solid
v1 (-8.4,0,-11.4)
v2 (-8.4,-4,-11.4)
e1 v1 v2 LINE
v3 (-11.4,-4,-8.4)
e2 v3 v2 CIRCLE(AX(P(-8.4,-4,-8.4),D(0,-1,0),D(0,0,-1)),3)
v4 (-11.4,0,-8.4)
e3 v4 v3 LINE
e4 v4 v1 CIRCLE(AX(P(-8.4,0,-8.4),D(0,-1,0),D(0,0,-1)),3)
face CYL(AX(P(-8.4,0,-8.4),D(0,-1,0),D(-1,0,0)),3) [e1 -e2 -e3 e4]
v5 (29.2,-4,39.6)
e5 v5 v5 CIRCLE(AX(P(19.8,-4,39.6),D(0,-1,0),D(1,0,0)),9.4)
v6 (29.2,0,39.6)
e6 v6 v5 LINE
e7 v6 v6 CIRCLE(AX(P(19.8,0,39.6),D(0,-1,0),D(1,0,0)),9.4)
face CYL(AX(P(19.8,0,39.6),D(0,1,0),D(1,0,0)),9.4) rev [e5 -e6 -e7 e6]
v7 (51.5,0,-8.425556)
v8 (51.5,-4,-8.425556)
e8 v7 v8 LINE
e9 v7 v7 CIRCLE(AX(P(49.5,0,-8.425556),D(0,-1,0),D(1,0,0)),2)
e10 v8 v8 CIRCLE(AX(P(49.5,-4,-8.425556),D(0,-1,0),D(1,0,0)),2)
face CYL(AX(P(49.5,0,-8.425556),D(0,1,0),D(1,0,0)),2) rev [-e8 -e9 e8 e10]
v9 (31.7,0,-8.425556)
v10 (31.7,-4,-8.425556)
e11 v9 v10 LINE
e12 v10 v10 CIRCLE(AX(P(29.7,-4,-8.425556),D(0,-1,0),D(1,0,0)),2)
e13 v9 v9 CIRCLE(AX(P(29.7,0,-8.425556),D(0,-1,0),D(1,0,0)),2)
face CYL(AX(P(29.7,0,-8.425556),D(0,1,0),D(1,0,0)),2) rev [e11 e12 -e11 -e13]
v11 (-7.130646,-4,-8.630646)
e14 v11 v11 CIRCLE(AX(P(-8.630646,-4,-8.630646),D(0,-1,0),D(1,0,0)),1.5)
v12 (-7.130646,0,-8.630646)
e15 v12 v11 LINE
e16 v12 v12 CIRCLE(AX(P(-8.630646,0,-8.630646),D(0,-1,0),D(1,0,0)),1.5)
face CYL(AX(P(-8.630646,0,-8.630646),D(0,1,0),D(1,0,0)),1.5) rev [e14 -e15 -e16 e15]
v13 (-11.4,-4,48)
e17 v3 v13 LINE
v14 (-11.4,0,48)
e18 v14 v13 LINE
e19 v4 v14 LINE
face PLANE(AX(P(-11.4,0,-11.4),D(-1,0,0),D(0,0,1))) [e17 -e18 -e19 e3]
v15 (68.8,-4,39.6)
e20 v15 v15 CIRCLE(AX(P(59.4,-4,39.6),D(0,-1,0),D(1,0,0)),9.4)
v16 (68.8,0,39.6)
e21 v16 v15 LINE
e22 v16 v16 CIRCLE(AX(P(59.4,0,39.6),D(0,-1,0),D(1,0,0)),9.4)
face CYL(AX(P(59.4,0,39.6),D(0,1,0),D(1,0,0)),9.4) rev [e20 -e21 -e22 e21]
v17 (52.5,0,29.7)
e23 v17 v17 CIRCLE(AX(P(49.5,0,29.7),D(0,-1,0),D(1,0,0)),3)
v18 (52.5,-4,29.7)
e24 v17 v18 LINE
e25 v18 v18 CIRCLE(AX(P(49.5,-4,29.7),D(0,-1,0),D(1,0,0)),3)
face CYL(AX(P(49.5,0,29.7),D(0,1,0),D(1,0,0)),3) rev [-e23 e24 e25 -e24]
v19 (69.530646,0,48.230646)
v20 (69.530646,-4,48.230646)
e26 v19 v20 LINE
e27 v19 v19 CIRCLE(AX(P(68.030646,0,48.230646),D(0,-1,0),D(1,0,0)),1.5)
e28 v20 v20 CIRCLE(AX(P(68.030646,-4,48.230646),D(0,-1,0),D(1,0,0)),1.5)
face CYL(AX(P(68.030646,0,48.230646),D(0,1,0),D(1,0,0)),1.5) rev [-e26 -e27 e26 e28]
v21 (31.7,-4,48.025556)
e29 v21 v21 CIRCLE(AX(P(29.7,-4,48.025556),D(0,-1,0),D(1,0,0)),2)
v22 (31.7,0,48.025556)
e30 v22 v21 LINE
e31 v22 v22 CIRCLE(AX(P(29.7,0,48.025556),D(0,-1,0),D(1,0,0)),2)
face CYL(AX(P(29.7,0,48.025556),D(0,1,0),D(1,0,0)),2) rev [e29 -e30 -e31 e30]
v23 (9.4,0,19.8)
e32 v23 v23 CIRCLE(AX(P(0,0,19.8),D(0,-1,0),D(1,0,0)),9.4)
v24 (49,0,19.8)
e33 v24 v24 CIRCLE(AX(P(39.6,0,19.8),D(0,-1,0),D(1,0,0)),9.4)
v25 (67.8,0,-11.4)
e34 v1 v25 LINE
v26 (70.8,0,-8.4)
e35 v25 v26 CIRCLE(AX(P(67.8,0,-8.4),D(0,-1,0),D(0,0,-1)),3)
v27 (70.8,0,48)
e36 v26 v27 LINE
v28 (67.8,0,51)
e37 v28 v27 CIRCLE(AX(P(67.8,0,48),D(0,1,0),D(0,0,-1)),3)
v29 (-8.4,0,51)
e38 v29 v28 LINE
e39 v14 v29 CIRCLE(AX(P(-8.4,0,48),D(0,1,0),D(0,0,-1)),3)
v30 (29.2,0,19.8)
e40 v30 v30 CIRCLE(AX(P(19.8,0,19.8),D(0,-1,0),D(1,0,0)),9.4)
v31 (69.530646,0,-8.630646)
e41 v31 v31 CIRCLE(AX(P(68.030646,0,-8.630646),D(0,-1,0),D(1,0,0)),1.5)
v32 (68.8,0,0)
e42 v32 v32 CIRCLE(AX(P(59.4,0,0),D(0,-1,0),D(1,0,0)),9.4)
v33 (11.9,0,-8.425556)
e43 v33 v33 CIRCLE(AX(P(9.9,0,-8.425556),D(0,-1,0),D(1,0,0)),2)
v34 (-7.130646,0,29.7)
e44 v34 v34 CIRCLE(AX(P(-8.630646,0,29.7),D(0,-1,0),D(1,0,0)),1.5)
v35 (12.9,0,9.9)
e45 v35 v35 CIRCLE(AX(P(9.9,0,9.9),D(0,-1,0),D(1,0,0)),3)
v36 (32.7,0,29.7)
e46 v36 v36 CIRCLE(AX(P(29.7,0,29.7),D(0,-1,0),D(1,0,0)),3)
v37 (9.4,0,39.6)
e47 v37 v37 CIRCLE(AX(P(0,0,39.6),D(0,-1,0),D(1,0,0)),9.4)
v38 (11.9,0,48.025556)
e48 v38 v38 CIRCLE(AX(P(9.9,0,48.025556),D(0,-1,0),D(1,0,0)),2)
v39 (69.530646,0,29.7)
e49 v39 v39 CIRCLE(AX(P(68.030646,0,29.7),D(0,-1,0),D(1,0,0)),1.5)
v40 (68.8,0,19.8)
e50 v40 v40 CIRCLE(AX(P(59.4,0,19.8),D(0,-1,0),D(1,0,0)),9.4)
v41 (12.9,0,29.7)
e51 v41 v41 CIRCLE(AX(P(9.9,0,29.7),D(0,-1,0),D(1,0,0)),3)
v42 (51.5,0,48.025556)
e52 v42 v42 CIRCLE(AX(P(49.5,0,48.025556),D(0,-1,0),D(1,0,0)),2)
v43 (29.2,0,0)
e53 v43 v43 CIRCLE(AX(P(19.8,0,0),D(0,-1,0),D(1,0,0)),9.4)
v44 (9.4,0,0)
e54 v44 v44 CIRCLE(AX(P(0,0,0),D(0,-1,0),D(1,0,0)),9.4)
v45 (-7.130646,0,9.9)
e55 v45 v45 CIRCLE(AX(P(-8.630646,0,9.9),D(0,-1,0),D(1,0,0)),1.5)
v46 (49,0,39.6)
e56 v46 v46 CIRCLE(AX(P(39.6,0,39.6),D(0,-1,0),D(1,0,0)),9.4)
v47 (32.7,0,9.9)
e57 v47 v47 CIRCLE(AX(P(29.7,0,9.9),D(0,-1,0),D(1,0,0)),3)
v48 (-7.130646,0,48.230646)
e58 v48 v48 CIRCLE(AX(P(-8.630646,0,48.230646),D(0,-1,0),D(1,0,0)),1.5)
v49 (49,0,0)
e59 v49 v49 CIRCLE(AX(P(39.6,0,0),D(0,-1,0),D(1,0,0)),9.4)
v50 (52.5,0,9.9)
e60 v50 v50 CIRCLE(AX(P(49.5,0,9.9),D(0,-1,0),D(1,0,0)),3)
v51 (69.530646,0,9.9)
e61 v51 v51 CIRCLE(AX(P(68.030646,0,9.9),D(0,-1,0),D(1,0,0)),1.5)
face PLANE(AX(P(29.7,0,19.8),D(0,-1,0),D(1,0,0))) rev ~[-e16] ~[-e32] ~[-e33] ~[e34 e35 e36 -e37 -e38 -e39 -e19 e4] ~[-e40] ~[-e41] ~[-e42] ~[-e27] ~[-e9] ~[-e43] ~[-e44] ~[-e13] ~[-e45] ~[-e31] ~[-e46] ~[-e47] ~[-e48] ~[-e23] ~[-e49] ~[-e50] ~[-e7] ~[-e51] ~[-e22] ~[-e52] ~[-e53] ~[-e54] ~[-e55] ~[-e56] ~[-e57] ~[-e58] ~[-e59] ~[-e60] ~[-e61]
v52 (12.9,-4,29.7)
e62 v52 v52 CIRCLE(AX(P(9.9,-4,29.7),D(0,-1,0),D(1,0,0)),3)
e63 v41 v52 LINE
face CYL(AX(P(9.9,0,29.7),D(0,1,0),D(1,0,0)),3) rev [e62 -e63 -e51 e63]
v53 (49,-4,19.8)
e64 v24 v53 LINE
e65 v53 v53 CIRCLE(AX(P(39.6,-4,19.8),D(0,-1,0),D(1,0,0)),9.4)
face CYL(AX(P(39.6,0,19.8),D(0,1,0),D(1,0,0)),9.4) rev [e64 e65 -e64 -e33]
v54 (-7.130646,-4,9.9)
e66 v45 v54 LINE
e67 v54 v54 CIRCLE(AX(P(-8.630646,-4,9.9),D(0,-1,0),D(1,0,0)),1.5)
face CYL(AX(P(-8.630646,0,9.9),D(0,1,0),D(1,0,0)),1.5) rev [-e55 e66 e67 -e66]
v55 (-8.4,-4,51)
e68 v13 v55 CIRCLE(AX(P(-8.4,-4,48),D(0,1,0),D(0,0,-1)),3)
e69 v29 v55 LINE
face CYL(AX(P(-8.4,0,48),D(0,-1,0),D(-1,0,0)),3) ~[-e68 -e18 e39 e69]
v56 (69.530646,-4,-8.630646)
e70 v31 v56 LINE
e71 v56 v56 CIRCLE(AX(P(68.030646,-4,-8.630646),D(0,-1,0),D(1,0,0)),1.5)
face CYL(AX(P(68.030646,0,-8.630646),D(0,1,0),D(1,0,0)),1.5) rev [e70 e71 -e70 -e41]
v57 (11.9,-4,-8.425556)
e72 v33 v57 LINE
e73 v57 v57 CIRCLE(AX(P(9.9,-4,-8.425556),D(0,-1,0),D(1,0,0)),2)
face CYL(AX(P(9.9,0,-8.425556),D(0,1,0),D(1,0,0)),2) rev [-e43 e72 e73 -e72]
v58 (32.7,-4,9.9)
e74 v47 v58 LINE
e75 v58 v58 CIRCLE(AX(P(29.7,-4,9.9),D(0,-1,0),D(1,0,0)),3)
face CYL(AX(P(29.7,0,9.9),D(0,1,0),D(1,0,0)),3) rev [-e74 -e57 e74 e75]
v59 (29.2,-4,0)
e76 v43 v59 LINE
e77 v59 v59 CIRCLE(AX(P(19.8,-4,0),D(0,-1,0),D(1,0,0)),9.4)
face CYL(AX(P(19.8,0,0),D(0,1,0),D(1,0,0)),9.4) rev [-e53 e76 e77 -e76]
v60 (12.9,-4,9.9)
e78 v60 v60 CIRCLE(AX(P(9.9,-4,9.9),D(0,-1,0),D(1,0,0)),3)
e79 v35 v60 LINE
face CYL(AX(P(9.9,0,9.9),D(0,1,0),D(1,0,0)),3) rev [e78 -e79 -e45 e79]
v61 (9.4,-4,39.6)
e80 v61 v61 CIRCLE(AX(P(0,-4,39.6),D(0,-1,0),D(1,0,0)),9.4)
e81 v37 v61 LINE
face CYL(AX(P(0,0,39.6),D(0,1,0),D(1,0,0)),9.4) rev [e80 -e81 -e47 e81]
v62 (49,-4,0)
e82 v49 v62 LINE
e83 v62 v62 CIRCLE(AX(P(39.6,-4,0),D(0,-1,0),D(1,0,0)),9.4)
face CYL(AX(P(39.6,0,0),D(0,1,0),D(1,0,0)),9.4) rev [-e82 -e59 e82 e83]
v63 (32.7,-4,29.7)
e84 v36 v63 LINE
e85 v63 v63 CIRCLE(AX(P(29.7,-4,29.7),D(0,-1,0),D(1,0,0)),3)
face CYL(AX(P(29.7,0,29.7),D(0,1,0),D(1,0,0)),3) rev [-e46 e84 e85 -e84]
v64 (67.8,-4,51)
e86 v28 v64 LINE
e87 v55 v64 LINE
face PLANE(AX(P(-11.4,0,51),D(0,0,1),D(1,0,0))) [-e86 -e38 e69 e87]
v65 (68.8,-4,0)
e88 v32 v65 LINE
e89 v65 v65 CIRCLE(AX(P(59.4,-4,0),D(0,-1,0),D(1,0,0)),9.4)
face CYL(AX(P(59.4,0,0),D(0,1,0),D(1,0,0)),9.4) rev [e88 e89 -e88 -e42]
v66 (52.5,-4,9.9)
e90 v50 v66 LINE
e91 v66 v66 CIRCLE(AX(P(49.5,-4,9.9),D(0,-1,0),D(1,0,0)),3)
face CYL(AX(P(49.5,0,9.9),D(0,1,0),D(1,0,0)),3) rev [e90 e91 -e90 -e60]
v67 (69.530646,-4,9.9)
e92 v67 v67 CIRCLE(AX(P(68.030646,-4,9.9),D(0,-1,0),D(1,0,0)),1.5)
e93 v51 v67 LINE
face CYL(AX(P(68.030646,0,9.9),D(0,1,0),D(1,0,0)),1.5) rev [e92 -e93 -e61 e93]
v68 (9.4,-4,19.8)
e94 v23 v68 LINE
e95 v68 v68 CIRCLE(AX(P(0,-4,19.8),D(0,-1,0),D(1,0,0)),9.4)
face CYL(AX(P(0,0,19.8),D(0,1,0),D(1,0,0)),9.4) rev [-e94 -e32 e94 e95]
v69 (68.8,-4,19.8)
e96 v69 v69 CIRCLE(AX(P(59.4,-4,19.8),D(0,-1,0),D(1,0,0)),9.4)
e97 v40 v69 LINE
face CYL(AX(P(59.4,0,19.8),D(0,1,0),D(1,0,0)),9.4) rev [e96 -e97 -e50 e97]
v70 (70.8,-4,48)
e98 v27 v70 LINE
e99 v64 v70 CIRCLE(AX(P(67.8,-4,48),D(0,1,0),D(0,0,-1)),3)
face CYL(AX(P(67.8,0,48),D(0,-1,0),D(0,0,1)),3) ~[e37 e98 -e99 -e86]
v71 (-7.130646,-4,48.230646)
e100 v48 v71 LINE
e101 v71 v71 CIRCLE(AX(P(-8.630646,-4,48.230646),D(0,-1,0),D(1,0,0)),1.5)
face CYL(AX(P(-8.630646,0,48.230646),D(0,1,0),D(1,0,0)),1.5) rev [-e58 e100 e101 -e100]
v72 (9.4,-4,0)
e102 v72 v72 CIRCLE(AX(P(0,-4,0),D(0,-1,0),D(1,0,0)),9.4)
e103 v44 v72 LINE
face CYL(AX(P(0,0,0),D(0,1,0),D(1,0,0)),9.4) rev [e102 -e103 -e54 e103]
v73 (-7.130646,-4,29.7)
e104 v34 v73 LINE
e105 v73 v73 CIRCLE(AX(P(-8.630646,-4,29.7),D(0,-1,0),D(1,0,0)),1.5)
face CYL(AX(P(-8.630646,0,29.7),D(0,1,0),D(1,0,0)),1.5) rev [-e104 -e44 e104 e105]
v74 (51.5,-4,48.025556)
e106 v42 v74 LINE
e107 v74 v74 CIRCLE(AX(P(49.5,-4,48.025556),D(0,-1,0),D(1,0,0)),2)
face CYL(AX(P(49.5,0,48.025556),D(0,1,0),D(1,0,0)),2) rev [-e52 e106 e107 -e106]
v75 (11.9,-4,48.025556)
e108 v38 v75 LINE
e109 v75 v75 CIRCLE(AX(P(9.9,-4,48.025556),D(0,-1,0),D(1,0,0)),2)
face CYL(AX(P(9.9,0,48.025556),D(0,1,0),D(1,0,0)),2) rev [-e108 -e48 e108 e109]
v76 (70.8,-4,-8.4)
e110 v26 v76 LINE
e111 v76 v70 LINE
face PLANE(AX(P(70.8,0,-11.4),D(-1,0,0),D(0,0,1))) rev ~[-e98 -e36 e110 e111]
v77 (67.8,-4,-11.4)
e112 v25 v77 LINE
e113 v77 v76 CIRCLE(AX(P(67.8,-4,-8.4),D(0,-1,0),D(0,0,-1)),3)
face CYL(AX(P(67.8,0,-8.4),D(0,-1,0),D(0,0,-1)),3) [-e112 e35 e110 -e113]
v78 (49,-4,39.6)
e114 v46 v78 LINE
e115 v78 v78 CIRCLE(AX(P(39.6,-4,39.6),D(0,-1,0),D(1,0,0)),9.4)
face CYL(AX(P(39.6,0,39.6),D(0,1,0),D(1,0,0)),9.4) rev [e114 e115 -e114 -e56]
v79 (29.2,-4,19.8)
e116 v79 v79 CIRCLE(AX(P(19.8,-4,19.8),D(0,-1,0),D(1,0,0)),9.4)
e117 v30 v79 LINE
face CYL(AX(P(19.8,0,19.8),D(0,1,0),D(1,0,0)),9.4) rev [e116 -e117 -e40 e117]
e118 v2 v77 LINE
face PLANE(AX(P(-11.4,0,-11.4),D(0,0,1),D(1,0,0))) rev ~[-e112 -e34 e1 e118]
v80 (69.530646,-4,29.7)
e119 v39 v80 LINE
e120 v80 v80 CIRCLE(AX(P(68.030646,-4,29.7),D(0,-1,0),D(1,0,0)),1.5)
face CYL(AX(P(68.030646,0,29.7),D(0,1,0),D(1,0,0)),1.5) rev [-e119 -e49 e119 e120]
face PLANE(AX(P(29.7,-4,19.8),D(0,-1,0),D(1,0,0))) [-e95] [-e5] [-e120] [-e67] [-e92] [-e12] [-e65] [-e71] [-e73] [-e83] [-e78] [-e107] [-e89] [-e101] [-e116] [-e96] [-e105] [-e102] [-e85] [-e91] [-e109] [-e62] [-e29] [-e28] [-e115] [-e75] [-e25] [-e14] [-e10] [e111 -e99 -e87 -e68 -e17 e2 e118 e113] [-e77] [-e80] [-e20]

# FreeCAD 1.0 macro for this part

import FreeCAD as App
import Part
import Sketcher


def edges_at(feature, points):
    """Names of the edges that pass closest to the given points."""
    edges = feature.Shape.Edges
    near = lambda p: min(range(len(edges)), key=lambda i: edges[i].distToShape(Part.Vertex(*p))[0])
    return sorted({f"Edge{near(p) + 1}" for p in points})

doc = App.newDocument("Part")
params = doc.addObject("Spreadsheet::Sheet", "Params")
for row, (alias, value) in enumerate([
    ("sketch1_diameter", "3 mm"),
    ("sketch1_diameter2", "4 mm"),
    ("sketch1_diameter3", "6 mm"),
    ("sketch1_diameter4", "18.8 mm"),
    ("sketch1_width", "82.2 mm"),
    ("pad1_length", "4 mm"),
    ("fillet_radius", "3 mm"),
], start=1):
    params.set(f"A{row}", alias)
    params.set(f"B{row}", "=" + value)
    params.setAlias(f"B{row}", alias)

body = doc.addObject("PartDesign::Body", "Body")

sketch1 = doc.addObject("Sketcher::SketchObject", "Sketch")
body.addObject(sketch1)
sketch1.AttachmentSupport = (doc.XZ_Plane, [""])
sketch1.MapMode = "FlatFace"
sketch1.addGeometry([
    Part.LineSegment(App.Vector(-11.4, 51, 0), App.Vector(-11.4, -11.4, 0)),
    Part.LineSegment(App.Vector(-11.4, -11.4, 0), App.Vector(70.8, -11.4, 0)),
    Part.LineSegment(App.Vector(70.8, -11.4, 0), App.Vector(70.8, 51, 0)),
    Part.LineSegment(App.Vector(70.8, 51, 0), App.Vector(-11.4, 51, 0)),
    Part.Circle(App.Vector(-8.6, -8.6, 0), App.Vector(0, 0, 1), 1.5),
    Part.Circle(App.Vector(0, 0, 0), App.Vector(0, 0, 1), 9.4),
    Part.Circle(App.Vector(9.9, -8.4, 0), App.Vector(0, 0, 1), 2),
    Part.Circle(App.Vector(29.7, -8.4, 0), App.Vector(0, 0, 1), 2),
    Part.Circle(App.Vector(19.8, 0, 0), App.Vector(0, 0, 1), 9.4),
    Part.Circle(App.Vector(-8.6, 9.9, 0), App.Vector(0, 0, 1), 1.5),
    Part.Circle(App.Vector(9.9, 9.9, 0), App.Vector(0, 0, 1), 3),
    Part.Circle(App.Vector(29.7, 9.9, 0), App.Vector(0, 0, 1), 3),
    Part.Circle(App.Vector(49.5, -8.4, 0), App.Vector(0, 0, 1), 2),
    Part.Circle(App.Vector(39.6, 0, 0), App.Vector(0, 0, 1), 9.4),
    Part.Circle(App.Vector(68, -8.6, 0), App.Vector(0, 0, 1), 1.5),
    Part.Circle(App.Vector(59.4, 0, 0), App.Vector(0, 0, 1), 9.4),
    Part.Circle(App.Vector(49.5, 9.9, 0), App.Vector(0, 0, 1), 3),
    Part.Circle(App.Vector(68, 9.9, 0), App.Vector(0, 0, 1), 1.5),
    Part.Circle(App.Vector(0, 19.8, 0), App.Vector(0, 0, 1), 9.4),
    Part.Circle(App.Vector(-8.6, 29.7, 0), App.Vector(0, 0, 1), 1.5),
    Part.Circle(App.Vector(19.8, 19.8, 0), App.Vector(0, 0, 1), 9.4),
    Part.Circle(App.Vector(9.9, 29.7, 0), App.Vector(0, 0, 1), 3),
    Part.Circle(App.Vector(29.7, 29.7, 0), App.Vector(0, 0, 1), 3),
    Part.Circle(App.Vector(0, 39.6, 0), App.Vector(0, 0, 1), 9.4),
    Part.Circle(App.Vector(-8.6, 48.2, 0), App.Vector(0, 0, 1), 1.5),
    Part.Circle(App.Vector(19.8, 39.6, 0), App.Vector(0, 0, 1), 9.4),
    Part.Circle(App.Vector(9.9, 48, 0), App.Vector(0, 0, 1), 2),
    Part.Circle(App.Vector(29.7, 48, 0), App.Vector(0, 0, 1), 2),
    Part.Circle(App.Vector(39.6, 19.8, 0), App.Vector(0, 0, 1), 9.4),
    Part.Circle(App.Vector(49.5, 29.7, 0), App.Vector(0, 0, 1), 3),
    Part.Circle(App.Vector(59.4, 19.8, 0), App.Vector(0, 0, 1), 9.4),
    Part.Circle(App.Vector(68, 29.7, 0), App.Vector(0, 0, 1), 1.5),
    Part.Circle(App.Vector(39.6, 39.6, 0), App.Vector(0, 0, 1), 9.4),
    Part.Circle(App.Vector(49.5, 48, 0), App.Vector(0, 0, 1), 2),
    Part.Circle(App.Vector(59.4, 39.6, 0), App.Vector(0, 0, 1), 9.4),
    Part.Circle(App.Vector(68, 48.2, 0), App.Vector(0, 0, 1), 1.5),
], False)
sketch1.addConstraint([
    Sketcher.Constraint("Coincident", 0, 2, 1, 1),
    Sketcher.Constraint("Coincident", 1, 2, 2, 1),
    Sketcher.Constraint("Coincident", 2, 2, 3, 1),
    Sketcher.Constraint("Coincident", 3, 2, 0, 1),
    Sketcher.Constraint("Vertical", 0),
    Sketcher.Constraint("Horizontal", 1),
    Sketcher.Constraint("Vertical", 2),
    Sketcher.Constraint("Horizontal", 3),
    Sketcher.Constraint("Coincident", 5, 3, -1, 1),
    Sketcher.Constraint("Equal", 6, 7),
    Sketcher.Constraint("Equal", 5, 8),
    Sketcher.Constraint("Equal", 4, 9),
    Sketcher.Constraint("Equal", 10, 11),
    Sketcher.Constraint("Equal", 7, 12),
    Sketcher.Constraint("Equal", 8, 13),
    Sketcher.Constraint("Equal", 9, 14),
    Sketcher.Constraint("Equal", 13, 15),
    Sketcher.Constraint("Equal", 11, 16),
    Sketcher.Constraint("Equal", 14, 17),
    Sketcher.Constraint("Equal", 15, 18),
    Sketcher.Constraint("Equal", 17, 19),
    Sketcher.Constraint("Equal", 18, 20),
    Sketcher.Constraint("Equal", 16, 21),
    Sketcher.Constraint("Equal", 21, 22),
    Sketcher.Constraint("Equal", 20, 23),
    Sketcher.Constraint("Equal", 19, 24),
    Sketcher.Constraint("Equal", 23, 25),
    Sketcher.Constraint("Equal", 12, 26),
    Sketcher.Constraint("Equal", 26, 27),
    Sketcher.Constraint("Equal", 25, 28),
    Sketcher.Constraint("Equal", 22, 29),
    Sketcher.Constraint("Equal", 28, 30),
    Sketcher.Constraint("Equal", 24, 31),
    Sketcher.Constraint("Equal", 30, 32),
    Sketcher.Constraint("Equal", 27, 33),
    Sketcher.Constraint("Equal", 32, 34),
    Sketcher.Constraint("Equal", 31, 35),
    Sketcher.Constraint("PointOnObject", 8, 3, -1),
    Sketcher.Constraint("PointOnObject", 13, 3, -1),
    Sketcher.Constraint("PointOnObject", 15, 3, -1),
    Sketcher.Constraint("PointOnObject", 18, 3, -2),
    Sketcher.Constraint("PointOnObject", 23, 3, -2),
    Sketcher.Constraint("Horizontal", 6, 3, 7, 3),
    Sketcher.Constraint("Horizontal", 9, 3, 10, 3),
    Sketcher.Constraint("Horizontal", 10, 3, 11, 3),
    Sketcher.Constraint("Horizontal", 7, 3, 12, 3),
    Sketcher.Constraint("Horizontal", 4, 3, 14, 3),
    Sketcher.Constraint("Horizontal", 11, 3, 16, 3),
    Sketcher.Constraint("Horizontal", 16, 3, 17, 3),
    Sketcher.Constraint("Horizontal", 18, 3, 20, 3),
    Sketcher.Constraint("Horizontal", 19, 3, 21, 3),
    Sketcher.Constraint("Horizontal", 21, 3, 22, 3),
    Sketcher.Constraint("Horizontal", 23, 3, 25, 3),
    Sketcher.Constraint("Horizontal", 26, 3, 27, 3),
    Sketcher.Constraint("Horizontal", 20, 3, 28, 3),
    Sketcher.Constraint("Horizontal", 22, 3, 29, 3),
    Sketcher.Constraint("Horizontal", 28, 3, 30, 3),
    Sketcher.Constraint("Horizontal", 29, 3, 31, 3),
    Sketcher.Constraint("Horizontal", 25, 3, 32, 3),
    Sketcher.Constraint("Horizontal", 27, 3, 33, 3),
    Sketcher.Constraint("Horizontal", 32, 3, 34, 3),
    Sketcher.Constraint("Horizontal", 24, 3, 35, 3),
    Sketcher.Constraint("Vertical", 4, 3, 9, 3),
    Sketcher.Constraint("Vertical", 6, 3, 10, 3),
    Sketcher.Constraint("Vertical", 7, 3, 11, 3),
    Sketcher.Constraint("Vertical", 12, 3, 16, 3),
    Sketcher.Constraint("Vertical", 14, 3, 17, 3),
    Sketcher.Constraint("Vertical", 9, 3, 19, 3),
    Sketcher.Constraint("Vertical", 8, 3, 20, 3),
    Sketcher.Constraint("Vertical", 10, 3, 21, 3),
    Sketcher.Constraint("Vertical", 11, 3, 22, 3),
    Sketcher.Constraint("Vertical", 19, 3, 24, 3),
    Sketcher.Constraint("Vertical", 20, 3, 25, 3),
    Sketcher.Constraint("Vertical", 21, 3, 26, 3),
    Sketcher.Constraint("Vertical", 22, 3, 27, 3),
    Sketcher.Constraint("Vertical", 13, 3, 28, 3),
    Sketcher.Constraint("Vertical", 16, 3, 29, 3),
    Sketcher.Constraint("Vertical", 15, 3, 30, 3),
    Sketcher.Constraint("Vertical", 17, 3, 31, 3),
    Sketcher.Constraint("Vertical", 28, 3, 32, 3),
    Sketcher.Constraint("Vertical", 29, 3, 33, 3),
    Sketcher.Constraint("Vertical", 30, 3, 34, 3),
    Sketcher.Constraint("Vertical", 31, 3, 35, 3),
    Sketcher.Constraint("Diameter", 4, 3.0),
    Sketcher.Constraint("Diameter", 6, 4.0),
    Sketcher.Constraint("Diameter", 10, 6.0),
    Sketcher.Constraint("Diameter", 5, 18.8),
    Sketcher.Constraint("DistanceX", 1, 1, 1, 2, 82.2),
    Sketcher.Constraint("DistanceY", 0, 2, 0, 1, 62.4),
    Sketcher.Constraint("DistanceY", -1, 1, 2, 2, 51.0),
    Sketcher.Constraint("DistanceX", -1, 1, 6, 3, 9.9),
    Sketcher.Constraint("DistanceX", -1, 1, 7, 3, 29.7),
    Sketcher.Constraint("DistanceX", -1, 1, 8, 3, 19.8),
    Sketcher.Constraint("DistanceY", -1, 1, 9, 3, 9.9),
    Sketcher.Constraint("DistanceX", -1, 1, 12, 3, 49.5),
    Sketcher.Constraint("DistanceX", -1, 1, 13, 3, 39.6),
    Sketcher.Constraint("DistanceX", -1, 1, 15, 3, 59.4),
    Sketcher.Constraint("DistanceY", -1, 1, 18, 3, 19.8),
    Sketcher.Constraint("DistanceY", -1, 1, 19, 3, 29.7),
    Sketcher.Constraint("DistanceY", -1, 1, 23, 3, 39.6),
    Sketcher.Constraint("DistanceX", 0, 2, -1, 1, 11.4),
    Sketcher.Constraint("DistanceY", 4, 3, 6, 3, 0.20509),
    Sketcher.Constraint("DistanceY", 26, 3, 24, 3, 0.20509),
    Sketcher.Constraint("DistanceX", 4, 3, -1, 1, 8.630646),
    Sketcher.Constraint("DistanceY", 4, 3, -1, 1, 8.630646),
    Sketcher.Constraint("DistanceX", -1, 1, 14, 3, 68.030646),
    Sketcher.Constraint("DistanceY", -1, 1, 24, 3, 48.230646),
])
sketch1.setExpression("Constraints[83]", "Params.sketch1_diameter")
sketch1.setExpression("Constraints[84]", "Params.sketch1_diameter2")
sketch1.setExpression("Constraints[85]", "Params.sketch1_diameter3")
sketch1.setExpression("Constraints[86]", "Params.sketch1_diameter4")
sketch1.setExpression("Constraints[87]", "Params.sketch1_width")
pad1 = doc.addObject("PartDesign::Pad", "Pad")
body.addObject(pad1)
pad1.Profile = sketch1
pad1.setExpression("Length", "Params.pad1_length")
doc.recompute()

fillet = doc.addObject("PartDesign::Fillet", "Fillet")
body.addObject(fillet)
fillet.Base = (pad1, edges_at(pad1, [
    (70.8, -2, 51),
    (-11.4, -2, 51),
    (-11.4, -2, -11.4),
    (70.8, -2, -11.4),
]))
fillet.setExpression("Radius", "Params.fillet_radius")

doc.recompute()
